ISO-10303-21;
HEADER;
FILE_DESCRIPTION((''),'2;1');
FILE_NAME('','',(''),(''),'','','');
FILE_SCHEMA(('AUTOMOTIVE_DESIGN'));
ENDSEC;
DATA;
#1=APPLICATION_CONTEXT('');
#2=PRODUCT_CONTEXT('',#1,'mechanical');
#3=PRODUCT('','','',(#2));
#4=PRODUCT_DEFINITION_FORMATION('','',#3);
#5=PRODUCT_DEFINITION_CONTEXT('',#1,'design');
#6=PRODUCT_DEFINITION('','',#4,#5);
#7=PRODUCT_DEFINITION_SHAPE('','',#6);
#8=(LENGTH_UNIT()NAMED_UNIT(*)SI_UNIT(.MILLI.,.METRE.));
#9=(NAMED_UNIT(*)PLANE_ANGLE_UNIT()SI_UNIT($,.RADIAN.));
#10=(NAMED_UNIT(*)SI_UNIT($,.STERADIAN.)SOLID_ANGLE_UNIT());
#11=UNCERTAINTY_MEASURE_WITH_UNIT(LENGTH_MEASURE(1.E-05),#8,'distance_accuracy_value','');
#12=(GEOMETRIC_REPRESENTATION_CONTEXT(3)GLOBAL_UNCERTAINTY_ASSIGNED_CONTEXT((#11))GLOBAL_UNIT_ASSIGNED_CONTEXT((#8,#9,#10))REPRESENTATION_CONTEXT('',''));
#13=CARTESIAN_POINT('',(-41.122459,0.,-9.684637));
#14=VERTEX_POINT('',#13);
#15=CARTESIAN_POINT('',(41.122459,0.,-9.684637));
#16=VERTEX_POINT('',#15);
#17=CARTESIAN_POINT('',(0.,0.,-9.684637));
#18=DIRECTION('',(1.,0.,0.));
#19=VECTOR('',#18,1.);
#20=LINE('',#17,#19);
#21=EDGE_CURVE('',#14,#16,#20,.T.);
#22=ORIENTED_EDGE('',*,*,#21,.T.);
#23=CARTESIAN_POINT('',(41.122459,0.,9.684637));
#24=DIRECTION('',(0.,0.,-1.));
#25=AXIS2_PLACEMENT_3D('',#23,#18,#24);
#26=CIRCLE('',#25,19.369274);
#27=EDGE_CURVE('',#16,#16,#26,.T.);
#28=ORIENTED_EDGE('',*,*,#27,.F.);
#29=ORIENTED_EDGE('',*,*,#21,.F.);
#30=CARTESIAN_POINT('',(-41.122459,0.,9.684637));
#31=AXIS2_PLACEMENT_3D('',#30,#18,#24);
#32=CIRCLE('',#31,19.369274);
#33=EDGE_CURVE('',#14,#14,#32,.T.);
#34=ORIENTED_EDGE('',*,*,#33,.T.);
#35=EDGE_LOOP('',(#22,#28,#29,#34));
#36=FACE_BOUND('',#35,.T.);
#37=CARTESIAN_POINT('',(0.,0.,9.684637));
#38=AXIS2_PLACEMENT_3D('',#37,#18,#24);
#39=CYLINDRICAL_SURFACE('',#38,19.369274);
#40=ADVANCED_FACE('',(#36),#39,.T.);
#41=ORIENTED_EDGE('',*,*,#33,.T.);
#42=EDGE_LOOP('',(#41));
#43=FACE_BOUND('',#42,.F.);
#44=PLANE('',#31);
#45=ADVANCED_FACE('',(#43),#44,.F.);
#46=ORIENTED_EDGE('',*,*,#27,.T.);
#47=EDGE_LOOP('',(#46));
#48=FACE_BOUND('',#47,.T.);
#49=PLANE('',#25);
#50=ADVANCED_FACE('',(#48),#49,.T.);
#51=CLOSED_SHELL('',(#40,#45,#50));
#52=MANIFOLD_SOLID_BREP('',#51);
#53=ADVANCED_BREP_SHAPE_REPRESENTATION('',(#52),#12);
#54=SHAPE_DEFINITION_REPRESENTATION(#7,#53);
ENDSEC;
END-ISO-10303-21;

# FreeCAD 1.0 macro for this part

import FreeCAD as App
import Part
import Sketcher

V = App.Vector
Q = App.Units.Quantity


def add_polygon(sketch, points):
    """Adds a closed chain of lines whose ends are joined by coincident constraints."""
    first, n = sketch.GeometryCount, len(points)
    for a, b in zip(points, points[1:] + points[:1]):
        sketch.addGeometry(Part.LineSegment(App.Vector(*a, 0), App.Vector(*b, 0)), False)
    for i in range(n):
        sketch.addConstraint(Sketcher.Constraint("Coincident", first + i, 2, first + (i + 1) % n, 1))

doc = App.newDocument("Part")
body = doc.addObject("PartDesign::Body", "Body")

sketch1 = body.newObject("Sketcher::SketchObject", "Sketch")
sketch1.AttachmentSupport = (doc.getObject("XZ_Plane"), [""])
sketch1.MapMode = "FlatFace"
add_polygon(sketch1, [(-41, 10), (-41, -10), (41, -10), (41, 10)])
sketch1.addGeometry(Part.LineSegment(V(-41, 10, 0), V(41, 10, 0)), True)
sketch1.addConstraint(Sketcher.Constraint("Vertical", 0))
sketch1.addConstraint(Sketcher.Constraint("Horizontal", 1))
sketch1.addConstraint(Sketcher.Constraint("Vertical", 2))
sketch1.addConstraint(Sketcher.Constraint("Horizontal", 3))
sketch1.addConstraint(Sketcher.Constraint("Horizontal", 4))
sketch1.addConstraint(Sketcher.Constraint("Coincident", 4, 1, 3, 2))
sketch1.addConstraint(Sketcher.Constraint("Symmetric", 0, 2, 2, 2, -1, 1))
sketch1.addConstraint(Sketcher.Constraint("Vertical", 1, 2, 4, 2))
sketch1.addConstraint(Sketcher.Constraint("DistanceX", 1, 1, 1, 2, Q("82.244918 mm")))
sketch1.addConstraint(Sketcher.Constraint("DistanceY", 0, 2, 0, 1, Q("19.369274 mm")))
revolution = body.newObject("PartDesign::Revolution", "Revolution")
revolution.Profile = sketch1
revolution.ReferenceAxis = (sketch1, ["Axis0"])
revolution.Angle = 360

doc.recompute()
